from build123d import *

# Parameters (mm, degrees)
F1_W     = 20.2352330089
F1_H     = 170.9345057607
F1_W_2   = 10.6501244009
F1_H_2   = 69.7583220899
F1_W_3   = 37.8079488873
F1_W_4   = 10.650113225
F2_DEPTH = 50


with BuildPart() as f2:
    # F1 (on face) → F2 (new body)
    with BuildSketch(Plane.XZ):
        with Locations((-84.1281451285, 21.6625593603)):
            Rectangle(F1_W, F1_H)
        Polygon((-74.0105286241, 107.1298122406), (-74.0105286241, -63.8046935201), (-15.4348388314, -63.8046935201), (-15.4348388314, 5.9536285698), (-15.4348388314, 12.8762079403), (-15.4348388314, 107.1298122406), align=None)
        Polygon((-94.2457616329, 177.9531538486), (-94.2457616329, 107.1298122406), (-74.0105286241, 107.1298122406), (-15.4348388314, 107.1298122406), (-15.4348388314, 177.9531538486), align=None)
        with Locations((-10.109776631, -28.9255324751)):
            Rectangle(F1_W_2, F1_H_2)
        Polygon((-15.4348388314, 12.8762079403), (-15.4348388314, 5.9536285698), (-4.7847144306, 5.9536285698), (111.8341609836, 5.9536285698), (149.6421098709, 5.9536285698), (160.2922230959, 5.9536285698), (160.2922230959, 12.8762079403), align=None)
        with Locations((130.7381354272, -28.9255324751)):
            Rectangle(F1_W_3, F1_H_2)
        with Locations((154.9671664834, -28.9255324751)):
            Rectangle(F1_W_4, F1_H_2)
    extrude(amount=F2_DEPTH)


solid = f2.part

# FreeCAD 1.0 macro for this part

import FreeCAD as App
import Part
import Sketcher

V = App.Vector
Q = App.Units.Quantity

doc = App.newDocument("Part")
params = doc.addObject("Spreadsheet::Sheet", "Params")
for row, (alias, value) in enumerate([
    ("pad1_length", "50 mm"),
], start=1):
    params.set(f"A{row}", alias)
    params.set(f"B{row}", "=" + value)
    params.setAlias(f"B{row}", alias)

body = doc.addObject("PartDesign::Body", "Body")

# Sketch on XZ plane
sketch1 = body.newObject("Sketcher::SketchObject", "Sketch")
sketch1.AttachmentSupport = (doc.getObject("XZ_Plane"), [""])
sketch1.MapMode = "FlatFace"
sketch1.addGeometry([
    Part.LineSegment(V(-94, -64, 0), V(-5, -64, 0)),  # 0
    Part.LineSegment(V(-5, -64, 0), V(-5, 6, 0)),  # 1
    Part.LineSegment(V(-5, 6, 0), V(112, 6, 0)),  # 2
    Part.LineSegment(V(112, 6, 0), V(112, -64, 0)),  # 3
    Part.LineSegment(V(112, -64, 0), V(160, -64, 0)),  # 4
    Part.LineSegment(V(160, -64, 0), V(160, 13, 0)),  # 5
    Part.LineSegment(V(160, 13, 0), V(-15, 13, 0)),  # 6
    Part.LineSegment(V(-15, 13, 0), V(-15, 178, 0)),  # 7
    Part.LineSegment(V(-15, 178, 0), V(-94, 178, 0)),  # 8
    Part.LineSegment(V(-94, 178, 0), V(-94, -64, 0)),  # 9
], False)
sketch1.addConstraint([
    Sketcher.Constraint("Coincident", 0, 2, 1, 1),
    Sketcher.Constraint("Coincident", 1, 2, 2, 1),
    Sketcher.Constraint("Coincident", 2, 2, 3, 1),
    Sketcher.Constraint("Coincident", 3, 2, 4, 1),
    Sketcher.Constraint("Coincident", 4, 2, 5, 1),
    Sketcher.Constraint("Coincident", 5, 2, 6, 1),
    Sketcher.Constraint("Coincident", 6, 2, 7, 1),
    Sketcher.Constraint("Coincident", 7, 2, 8, 1),
    Sketcher.Constraint("Coincident", 8, 2, 9, 1),
    Sketcher.Constraint("Coincident", 9, 2, 0, 1),
    Sketcher.Constraint("Horizontal", 0),
    Sketcher.Constraint("Vertical", 1),
    Sketcher.Constraint("Horizontal", 2),
    Sketcher.Constraint("Vertical", 3),
    Sketcher.Constraint("Horizontal", 4),
    Sketcher.Constraint("Vertical", 5),
    Sketcher.Constraint("Horizontal", 6),
    Sketcher.Constraint("Vertical", 7),
    Sketcher.Constraint("Horizontal", 8),
    Sketcher.Constraint("Vertical", 9),
    Sketcher.Constraint("Horizontal", 0, 2, 3, 2),
    Sketcher.Constraint("DistanceY", 5, 1, 5, 2, Q("76.680901 mm")),
    Sketcher.Constraint("DistanceX", 6, 2, 2, 2, Q("127.269 mm")),
    Sketcher.Constraint("DistanceX", 6, 2, 6, 1, Q("175.727062 mm")),
    Sketcher.Constraint("DistanceX", 0, 1, 0, 2, Q("89.461047 mm")),
    Sketcher.Constraint("DistanceX", 2, 1, 2, 2, Q("116.618875 mm")),
    Sketcher.Constraint("DistanceY", 1, 1, 1, 2, Q("69.758322 mm")),
    Sketcher.Constraint("DistanceY", 7, 1, 7, 2, Q("165.076946 mm")),
    Sketcher.Constraint("DistanceY", -1, 1, 1, 2, Q("5.953629 mm")),
    Sketcher.Constraint("DistanceX", -1, 1, 2, 2, Q("111.834161 mm")),
])
pad1 = body.newObject("PartDesign::Pad", "Pad")
pad1.Profile = sketch1
pad1.setExpression("Length", "Params.pad1_length")

doc.recompute()
